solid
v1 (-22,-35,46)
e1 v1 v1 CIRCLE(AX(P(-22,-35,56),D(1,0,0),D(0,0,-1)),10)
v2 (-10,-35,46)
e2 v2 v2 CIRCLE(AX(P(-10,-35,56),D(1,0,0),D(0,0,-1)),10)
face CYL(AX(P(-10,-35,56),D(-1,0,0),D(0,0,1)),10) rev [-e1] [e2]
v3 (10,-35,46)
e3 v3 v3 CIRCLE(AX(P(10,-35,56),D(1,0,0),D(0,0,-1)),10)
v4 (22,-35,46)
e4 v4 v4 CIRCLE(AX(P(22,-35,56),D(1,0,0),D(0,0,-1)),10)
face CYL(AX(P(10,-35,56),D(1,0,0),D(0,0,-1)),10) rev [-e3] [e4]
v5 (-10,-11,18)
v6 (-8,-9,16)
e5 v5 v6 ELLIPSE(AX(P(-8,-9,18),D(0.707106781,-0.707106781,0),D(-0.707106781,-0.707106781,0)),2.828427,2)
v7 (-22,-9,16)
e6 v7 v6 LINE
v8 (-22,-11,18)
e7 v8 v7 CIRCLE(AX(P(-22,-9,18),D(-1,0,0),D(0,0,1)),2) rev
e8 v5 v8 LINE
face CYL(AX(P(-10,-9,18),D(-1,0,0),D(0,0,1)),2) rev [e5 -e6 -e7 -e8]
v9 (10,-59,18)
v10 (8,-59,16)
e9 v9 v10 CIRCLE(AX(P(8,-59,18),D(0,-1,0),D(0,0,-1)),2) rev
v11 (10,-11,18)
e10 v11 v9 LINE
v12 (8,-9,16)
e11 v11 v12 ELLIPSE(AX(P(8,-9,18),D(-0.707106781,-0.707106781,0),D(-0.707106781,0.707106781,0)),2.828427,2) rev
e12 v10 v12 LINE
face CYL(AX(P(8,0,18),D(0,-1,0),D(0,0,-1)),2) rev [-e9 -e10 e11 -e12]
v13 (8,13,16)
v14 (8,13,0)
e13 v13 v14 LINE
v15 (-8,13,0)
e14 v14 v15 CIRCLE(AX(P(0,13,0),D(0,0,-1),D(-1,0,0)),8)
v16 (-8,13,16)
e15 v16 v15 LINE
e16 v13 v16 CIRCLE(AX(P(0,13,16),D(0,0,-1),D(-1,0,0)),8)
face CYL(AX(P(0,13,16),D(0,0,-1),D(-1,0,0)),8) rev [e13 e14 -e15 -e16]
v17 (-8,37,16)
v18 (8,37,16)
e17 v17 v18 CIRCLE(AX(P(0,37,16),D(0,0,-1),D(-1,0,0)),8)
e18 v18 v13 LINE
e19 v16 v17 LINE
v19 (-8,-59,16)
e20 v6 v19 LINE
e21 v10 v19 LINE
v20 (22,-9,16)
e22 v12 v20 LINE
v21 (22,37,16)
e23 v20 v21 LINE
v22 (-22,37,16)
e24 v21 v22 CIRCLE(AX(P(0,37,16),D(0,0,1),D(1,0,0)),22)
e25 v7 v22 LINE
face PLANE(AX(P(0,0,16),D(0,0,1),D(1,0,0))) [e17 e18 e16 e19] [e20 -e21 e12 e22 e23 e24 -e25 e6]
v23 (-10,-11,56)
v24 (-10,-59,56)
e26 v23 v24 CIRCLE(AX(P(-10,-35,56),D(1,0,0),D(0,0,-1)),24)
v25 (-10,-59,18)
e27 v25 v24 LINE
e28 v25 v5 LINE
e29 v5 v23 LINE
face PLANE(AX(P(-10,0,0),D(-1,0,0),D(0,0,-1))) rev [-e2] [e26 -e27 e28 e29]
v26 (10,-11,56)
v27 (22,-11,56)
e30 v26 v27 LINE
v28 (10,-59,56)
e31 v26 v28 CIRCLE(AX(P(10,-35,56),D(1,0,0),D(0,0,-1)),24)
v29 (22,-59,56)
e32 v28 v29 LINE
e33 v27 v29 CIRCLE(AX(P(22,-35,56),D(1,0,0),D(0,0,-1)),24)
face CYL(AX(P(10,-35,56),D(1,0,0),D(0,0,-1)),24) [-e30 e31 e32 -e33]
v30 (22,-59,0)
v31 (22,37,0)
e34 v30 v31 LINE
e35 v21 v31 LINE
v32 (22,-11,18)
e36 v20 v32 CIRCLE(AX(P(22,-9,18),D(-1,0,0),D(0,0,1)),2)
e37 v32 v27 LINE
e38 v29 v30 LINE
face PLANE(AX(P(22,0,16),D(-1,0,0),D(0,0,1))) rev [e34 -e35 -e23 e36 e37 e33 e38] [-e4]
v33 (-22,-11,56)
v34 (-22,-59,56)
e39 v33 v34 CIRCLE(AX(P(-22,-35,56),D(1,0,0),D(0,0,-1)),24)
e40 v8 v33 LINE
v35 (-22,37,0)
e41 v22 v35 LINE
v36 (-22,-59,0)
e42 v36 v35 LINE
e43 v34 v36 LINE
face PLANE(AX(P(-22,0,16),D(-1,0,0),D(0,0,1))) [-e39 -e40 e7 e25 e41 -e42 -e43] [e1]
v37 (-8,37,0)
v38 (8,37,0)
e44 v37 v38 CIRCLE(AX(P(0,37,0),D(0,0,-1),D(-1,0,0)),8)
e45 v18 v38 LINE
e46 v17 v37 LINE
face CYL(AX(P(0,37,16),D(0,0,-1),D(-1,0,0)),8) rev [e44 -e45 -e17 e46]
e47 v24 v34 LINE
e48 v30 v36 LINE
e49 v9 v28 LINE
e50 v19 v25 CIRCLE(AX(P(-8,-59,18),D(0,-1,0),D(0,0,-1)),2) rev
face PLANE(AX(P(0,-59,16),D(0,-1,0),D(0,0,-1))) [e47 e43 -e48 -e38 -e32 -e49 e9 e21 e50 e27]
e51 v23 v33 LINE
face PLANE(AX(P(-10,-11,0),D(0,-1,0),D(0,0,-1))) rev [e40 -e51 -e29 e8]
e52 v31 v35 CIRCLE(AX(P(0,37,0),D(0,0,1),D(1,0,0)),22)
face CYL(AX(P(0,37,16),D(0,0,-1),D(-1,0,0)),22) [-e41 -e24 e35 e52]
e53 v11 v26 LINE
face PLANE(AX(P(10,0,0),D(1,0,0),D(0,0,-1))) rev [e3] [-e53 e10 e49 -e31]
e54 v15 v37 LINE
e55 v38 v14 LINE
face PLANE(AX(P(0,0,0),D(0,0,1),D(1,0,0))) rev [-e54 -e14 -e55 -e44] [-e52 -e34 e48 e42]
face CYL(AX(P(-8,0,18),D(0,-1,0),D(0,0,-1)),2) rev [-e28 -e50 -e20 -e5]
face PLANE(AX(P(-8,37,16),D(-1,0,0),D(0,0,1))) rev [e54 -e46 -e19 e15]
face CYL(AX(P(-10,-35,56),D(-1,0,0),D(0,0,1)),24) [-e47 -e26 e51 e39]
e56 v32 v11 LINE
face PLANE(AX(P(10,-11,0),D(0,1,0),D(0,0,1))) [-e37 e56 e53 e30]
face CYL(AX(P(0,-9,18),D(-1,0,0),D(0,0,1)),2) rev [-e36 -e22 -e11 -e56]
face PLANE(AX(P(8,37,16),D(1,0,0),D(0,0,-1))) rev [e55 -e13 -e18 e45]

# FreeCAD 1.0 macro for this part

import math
import FreeCAD as App
import Part
import Sketcher
Q = App.Units.Quantity


def edges_at(feature, points):
    """Names of the edges that pass closest to the given points."""
    edges = feature.Shape.Edges
    near = lambda p: min(range(len(edges)), key=lambda i: edges[i].distToShape(Part.Vertex(*p))[0])
    return sorted({f"Edge{near(p) + 1}" for p in points})

doc = App.newDocument("Part")
body = doc.addObject("PartDesign::Body", "Body")

# Sketch on XY plane
sketch1 = doc.addObject("Sketcher::SketchObject", "Sketch")
body.addObject(sketch1)
sketch1.AttachmentSupport = (doc.XY_Plane, [""])
sketch1.MapMode = "FlatFace"
sketch1.addGeometry([
    Part.LineSegment(App.Vector(-22, -59, 0), App.Vector(22, -59, 0)),
    Part.LineSegment(App.Vector(22, -59, 0), App.Vector(22, 37, 0)),
    Part.ArcOfCircle(Part.Circle(App.Vector(0, 37, 0), App.Vector(0, 0, 1), 22), math.radians(0), math.radians(180)),
    Part.LineSegment(App.Vector(-22, 37, 0), App.Vector(-22, -59, 0)),
], False)
sketch1.addConstraint([
    Sketcher.Constraint("Coincident", 0, 2, 1, 1),
    Sketcher.Constraint("Tangent", 1, 2, 2, 1),
    Sketcher.Constraint("Tangent", 2, 2, 3, 1),
    Sketcher.Constraint("Coincident", 3, 2, 0, 1),
    Sketcher.Constraint("Horizontal", 0),
    Sketcher.Constraint("Vertical", 1),
    Sketcher.Constraint("Vertical", 3),
    Sketcher.Constraint("PointOnObject", 2, 3, -2),
    Sketcher.Constraint("Radius", 2, Q("22 mm")),
    Sketcher.Constraint("DistanceY", 1, 1, 1, 2, Q("96 mm")),
    Sketcher.Constraint("DistanceY", -1, 1, 2, 3, Q("37 mm")),
])
pad1 = doc.addObject("PartDesign::Pad", "Pad")
body.addObject(pad1)
pad1.Profile = sketch1
pad1.Length = 16

# Sketch on XY plane
sketch2 = doc.addObject("Sketcher::SketchObject", "Sketch001")
body.addObject(sketch2)
sketch2.AttachmentSupport = (doc.XY_Plane, [""])
sketch2.MapMode = "FlatFace"
sketch2.addGeometry([
    Part.LineSegment(App.Vector(-8, 13, 0), App.Vector(-8, 37, 0)),
    Part.ArcOfCircle(Part.Circle(App.Vector(0, 37, 0), App.Vector(0, 0, 1), 8), math.radians(0), math.radians(180)),
    Part.LineSegment(App.Vector(8, 37, 0), App.Vector(8, 13, 0)),
    Part.ArcOfCircle(Part.Circle(App.Vector(0, 13, 0), App.Vector(0, 0, 1), 8), math.radians(180), math.radians(360)),
], False)
sketch2.addConstraint([
    Sketcher.Constraint("Tangent", 0, 2, 1, 2),
    Sketcher.Constraint("Tangent", 1, 1, 2, 1),
    Sketcher.Constraint("Tangent", 2, 2, 3, 2),
    Sketcher.Constraint("Tangent", 3, 1, 0, 1),
    Sketcher.Constraint("Vertical", 0),
    Sketcher.Constraint("Vertical", 2),
    Sketcher.Constraint("PointOnObject", 1, 3, -2),
    Sketcher.Constraint("Radius", 1, Q("8 mm")),
    Sketcher.Constraint("DistanceY", 0, 1, 0, 2, Q("24 mm")),
    Sketcher.Constraint("DistanceY", -1, 1, 1, 3, Q("37 mm")),
])
pocket1 = doc.addObject("PartDesign::Pocket", "Pocket")
body.addObject(pocket1)
pocket1.Profile = sketch2
pocket1.Length = 16
pocket1.Reversed = True

# Sketch on YZ plane
sketch3 = doc.addObject("Sketcher::SketchObject", "Sketch002")
body.addObject(sketch3)
sketch3.AttachmentSupport = (doc.YZ_Plane, [""])
sketch3.MapMode = "FlatFace"
sketch3.AttachmentOffset = App.Placement(App.Vector(0, 0, 22), App.Rotation())
sketch3.addGeometry([
    Part.ArcOfCircle(Part.Circle(App.Vector(-35, 56, 0), App.Vector(0, 0, 1), 24), math.radians(0), math.radians(180)),  # 0
    Part.LineSegment(App.Vector(-59, 56, 0), App.Vector(-59, 16, 0)),  # 1
    Part.LineSegment(App.Vector(-59, 16, 0), App.Vector(-11, 16, 0)),  # 2
    Part.LineSegment(App.Vector(-11, 16, 0), App.Vector(-11, 56, 0)),  # 3
    Part.Circle(App.Vector(-35, 56, 0), App.Vector(0, 0, 1), 10),  # 4
], False)
sketch3.addConstraint([
    Sketcher.Constraint("Tangent", 0, 2, 1, 1),
    Sketcher.Constraint("Coincident", 1, 2, 2, 1),
    Sketcher.Constraint("Coincident", 2, 2, 3, 1),
    Sketcher.Constraint("Tangent", 3, 2, 0, 1),
    Sketcher.Constraint("Vertical", 1),
    Sketcher.Constraint("Horizontal", 2),
    Sketcher.Constraint("Vertical", 3),
    Sketcher.Constraint("Coincident", 4, 3, 0, 3),
    Sketcher.Constraint("Diameter", 4, Q("20 mm")),
    Sketcher.Constraint("Radius", 0, Q("24 mm")),
    Sketcher.Constraint("DistanceY", 1, 2, 1, 1, Q("40 mm")),
    Sketcher.Constraint("DistanceX", 0, 3, -1, 1, Q("35 mm")),
    Sketcher.Constraint("DistanceY", -1, 1, 0, 3, Q("56 mm")),
])
pad2 = doc.addObject("PartDesign::Pad", "Pad001")
body.addObject(pad2)
pad2.Profile = sketch3
pad2.Length = 12
pad2.Reversed = True
doc.recompute()

mirrored = doc.addObject("PartDesign::Mirrored", "Mirrored")
body.addObject(mirrored)
mirrored.Originals = [pad2]
mirrored.MirrorPlane = (doc.YZ_Plane, [""])
body.Tip = mirrored
doc.recompute()

fillet = doc.addObject("PartDesign::Fillet", "Fillet")
body.addObject(fillet)
fillet.Base = (mirrored, edges_at(mirrored, [
    (16, -11, 16),
    (10, -35, 16),
    (-16, -11, 16),
    (-10, -35, 16),
]))
fillet.Radius = 2

doc.recompute()
